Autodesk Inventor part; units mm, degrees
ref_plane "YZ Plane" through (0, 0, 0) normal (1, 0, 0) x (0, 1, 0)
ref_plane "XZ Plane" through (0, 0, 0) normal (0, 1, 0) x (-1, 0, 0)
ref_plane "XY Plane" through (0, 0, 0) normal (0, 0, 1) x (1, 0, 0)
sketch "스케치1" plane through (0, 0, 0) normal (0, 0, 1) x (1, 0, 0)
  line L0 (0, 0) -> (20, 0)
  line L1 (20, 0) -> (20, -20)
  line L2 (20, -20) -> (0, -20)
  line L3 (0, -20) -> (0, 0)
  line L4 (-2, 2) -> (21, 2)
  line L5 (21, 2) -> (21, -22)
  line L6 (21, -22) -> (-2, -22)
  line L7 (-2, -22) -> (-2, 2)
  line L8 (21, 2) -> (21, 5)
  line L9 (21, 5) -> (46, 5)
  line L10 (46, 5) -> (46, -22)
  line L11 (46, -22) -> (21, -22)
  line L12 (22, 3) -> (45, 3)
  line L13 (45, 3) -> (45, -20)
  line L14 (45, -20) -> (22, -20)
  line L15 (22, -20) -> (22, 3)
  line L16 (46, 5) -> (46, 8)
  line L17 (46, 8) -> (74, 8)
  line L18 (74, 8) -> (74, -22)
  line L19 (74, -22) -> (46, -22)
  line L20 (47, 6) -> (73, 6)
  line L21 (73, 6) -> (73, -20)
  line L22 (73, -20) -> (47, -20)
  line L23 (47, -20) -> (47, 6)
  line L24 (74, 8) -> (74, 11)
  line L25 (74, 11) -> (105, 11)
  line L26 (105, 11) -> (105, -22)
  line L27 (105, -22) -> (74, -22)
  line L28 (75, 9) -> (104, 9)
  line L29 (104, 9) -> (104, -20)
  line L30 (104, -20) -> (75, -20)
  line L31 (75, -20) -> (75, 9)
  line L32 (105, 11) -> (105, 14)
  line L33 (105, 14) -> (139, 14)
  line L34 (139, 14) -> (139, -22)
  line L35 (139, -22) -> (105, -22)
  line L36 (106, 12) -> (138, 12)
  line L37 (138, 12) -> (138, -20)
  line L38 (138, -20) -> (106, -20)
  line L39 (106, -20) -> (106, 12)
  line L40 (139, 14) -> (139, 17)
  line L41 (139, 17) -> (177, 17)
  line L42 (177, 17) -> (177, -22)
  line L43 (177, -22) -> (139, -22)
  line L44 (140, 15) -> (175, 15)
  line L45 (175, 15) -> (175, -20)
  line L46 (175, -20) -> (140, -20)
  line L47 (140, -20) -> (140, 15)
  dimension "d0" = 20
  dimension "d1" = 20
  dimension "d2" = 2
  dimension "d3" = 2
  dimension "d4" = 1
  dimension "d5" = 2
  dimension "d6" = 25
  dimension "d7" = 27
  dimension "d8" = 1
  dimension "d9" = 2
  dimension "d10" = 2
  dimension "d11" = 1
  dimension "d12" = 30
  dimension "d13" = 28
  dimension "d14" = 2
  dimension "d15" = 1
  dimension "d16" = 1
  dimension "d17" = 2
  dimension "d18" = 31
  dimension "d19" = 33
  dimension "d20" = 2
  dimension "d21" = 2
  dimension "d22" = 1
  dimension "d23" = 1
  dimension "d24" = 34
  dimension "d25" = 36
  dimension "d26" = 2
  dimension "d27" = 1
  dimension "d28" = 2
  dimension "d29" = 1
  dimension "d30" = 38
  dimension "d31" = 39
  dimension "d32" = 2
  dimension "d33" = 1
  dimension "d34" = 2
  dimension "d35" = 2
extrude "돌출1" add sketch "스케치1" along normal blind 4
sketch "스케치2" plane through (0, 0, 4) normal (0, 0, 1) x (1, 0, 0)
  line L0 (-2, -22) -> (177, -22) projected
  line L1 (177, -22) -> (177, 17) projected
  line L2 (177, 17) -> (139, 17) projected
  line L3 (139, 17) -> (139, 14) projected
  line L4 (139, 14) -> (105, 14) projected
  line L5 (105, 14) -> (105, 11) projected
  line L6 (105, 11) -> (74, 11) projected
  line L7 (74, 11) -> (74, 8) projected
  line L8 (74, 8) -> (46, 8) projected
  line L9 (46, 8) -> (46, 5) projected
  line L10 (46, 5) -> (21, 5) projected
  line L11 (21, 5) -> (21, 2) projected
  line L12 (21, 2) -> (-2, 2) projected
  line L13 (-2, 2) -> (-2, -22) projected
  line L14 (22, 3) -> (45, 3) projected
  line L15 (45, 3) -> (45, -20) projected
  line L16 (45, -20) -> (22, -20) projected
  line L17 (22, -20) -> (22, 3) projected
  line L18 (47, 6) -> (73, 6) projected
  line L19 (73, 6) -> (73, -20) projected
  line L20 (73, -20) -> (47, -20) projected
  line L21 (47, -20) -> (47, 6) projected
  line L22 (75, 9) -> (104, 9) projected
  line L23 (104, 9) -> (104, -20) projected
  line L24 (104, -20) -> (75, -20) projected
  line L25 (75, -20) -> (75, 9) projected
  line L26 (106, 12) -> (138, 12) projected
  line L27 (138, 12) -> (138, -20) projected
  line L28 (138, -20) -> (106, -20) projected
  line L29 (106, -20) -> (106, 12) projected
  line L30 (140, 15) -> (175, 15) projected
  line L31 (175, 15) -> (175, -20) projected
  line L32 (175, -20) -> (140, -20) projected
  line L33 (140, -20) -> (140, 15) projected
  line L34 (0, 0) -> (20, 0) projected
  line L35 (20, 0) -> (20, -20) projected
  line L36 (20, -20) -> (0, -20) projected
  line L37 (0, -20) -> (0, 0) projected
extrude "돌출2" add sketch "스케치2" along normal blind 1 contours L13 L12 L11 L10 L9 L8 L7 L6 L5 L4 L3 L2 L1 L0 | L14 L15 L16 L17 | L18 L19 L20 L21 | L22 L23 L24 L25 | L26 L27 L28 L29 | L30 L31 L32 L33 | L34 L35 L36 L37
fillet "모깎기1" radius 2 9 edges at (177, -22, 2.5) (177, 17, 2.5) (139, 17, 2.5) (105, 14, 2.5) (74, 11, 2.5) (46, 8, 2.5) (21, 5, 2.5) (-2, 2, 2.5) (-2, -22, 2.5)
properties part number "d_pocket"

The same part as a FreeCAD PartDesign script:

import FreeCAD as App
import Part
import Sketcher

V = App.Vector
Q = App.Units.Quantity


def edges_at(feature, points):
    """Names of the edges that pass closest to the given points."""
    edges = feature.Shape.Edges
    near = lambda p: min(range(len(edges)), key=lambda i: edges[i].distToShape(Part.Vertex(*p))[0])
    return sorted({f"Edge{near(p) + 1}" for p in points})


def add_polygon(sketch, points):
    """Adds a closed chain of lines whose ends are joined by coincident constraints."""
    first, n = sketch.GeometryCount, len(points)
    for a, b in zip(points, points[1:] + points[:1]):
        sketch.addGeometry(Part.LineSegment(App.Vector(*a, 0), App.Vector(*b, 0)), False)
    for i in range(n):
        sketch.addConstraint(Sketcher.Constraint("Coincident", first + i, 2, first + (i + 1) % n, 1))

doc = App.newDocument("Part")
body = doc.addObject("PartDesign::Body", "Body")

sketch1 = body.newObject("Sketcher::SketchObject", "Sketch")
sketch1.AttachmentSupport = (doc.getObject("XY_Plane"), [""])
sketch1.MapMode = "FlatFace"
add_polygon(sketch1, [(21, 2), (-2, 2), (-2, -22), (177, -22), (177, 17), (139, 17), (139, 14), (105, 14), (105, 11), (74, 11), (74, 8), (46, 8), (46, 5), (21, 5)])
add_polygon(sketch1, [(0, -20), (0, 0), (20, 0), (20, -20)])
add_polygon(sketch1, [(22, 3), (45, 3), (45, -20), (22, -20)])
add_polygon(sketch1, [(47, 6), (73, 6), (73, -20), (47, -20)])
add_polygon(sketch1, [(75, 9), (104, 9), (104, -20), (75, -20)])
add_polygon(sketch1, [(106, 12), (138, 12), (138, -20), (106, -20)])
add_polygon(sketch1, [(140, 15), (175, 15), (175, -20), (140, -20)])
sketch1.addConstraint(Sketcher.Constraint("Horizontal", 0))
sketch1.addConstraint(Sketcher.Constraint("Vertical", 1))
sketch1.addConstraint(Sketcher.Constraint("Horizontal", 2))
sketch1.addConstraint(Sketcher.Constraint("Vertical", 3))
sketch1.addConstraint(Sketcher.Constraint("Horizontal", 4))
sketch1.addConstraint(Sketcher.Constraint("Vertical", 5))
sketch1.addConstraint(Sketcher.Constraint("Horizontal", 6))
sketch1.addConstraint(Sketcher.Constraint("Vertical", 7))
sketch1.addConstraint(Sketcher.Constraint("Horizontal", 8))
sketch1.addConstraint(Sketcher.Constraint("Vertical", 9))
sketch1.addConstraint(Sketcher.Constraint("Horizontal", 10))
sketch1.addConstraint(Sketcher.Constraint("Vertical", 11))
sketch1.addConstraint(Sketcher.Constraint("Horizontal", 12))
sketch1.addConstraint(Sketcher.Constraint("Vertical", 13))
sketch1.addConstraint(Sketcher.Constraint("Vertical", 14))
sketch1.addConstraint(Sketcher.Constraint("Horizontal", 15))
sketch1.addConstraint(Sketcher.Constraint("Vertical", 16))
sketch1.addConstraint(Sketcher.Constraint("Horizontal", 17))
sketch1.addConstraint(Sketcher.Constraint("Horizontal", 18))
sketch1.addConstraint(Sketcher.Constraint("Vertical", 19))
sketch1.addConstraint(Sketcher.Constraint("Horizontal", 20))
sketch1.addConstraint(Sketcher.Constraint("Vertical", 21))
sketch1.addConstraint(Sketcher.Constraint("Horizontal", 22))
sketch1.addConstraint(Sketcher.Constraint("Vertical", 23))
sketch1.addConstraint(Sketcher.Constraint("Horizontal", 24))
sketch1.addConstraint(Sketcher.Constraint("Vertical", 25))
sketch1.addConstraint(Sketcher.Constraint("Horizontal", 26))
sketch1.addConstraint(Sketcher.Constraint("Vertical", 27))
sketch1.addConstraint(Sketcher.Constraint("Horizontal", 28))
sketch1.addConstraint(Sketcher.Constraint("Vertical", 29))
sketch1.addConstraint(Sketcher.Constraint("Horizontal", 30))
sketch1.addConstraint(Sketcher.Constraint("Vertical", 31))
sketch1.addConstraint(Sketcher.Constraint("Horizontal", 32))
sketch1.addConstraint(Sketcher.Constraint("Vertical", 33))
sketch1.addConstraint(Sketcher.Constraint("Horizontal", 34))
sketch1.addConstraint(Sketcher.Constraint("Vertical", 35))
sketch1.addConstraint(Sketcher.Constraint("Horizontal", 36))
sketch1.addConstraint(Sketcher.Constraint("Vertical", 37))
sketch1.addConstraint(Sketcher.Constraint("Coincident", 14, 2, -1, 1))
sketch1.addConstraint(Sketcher.Constraint("Horizontal", 17, 2, 19, 2))
sketch1.addConstraint(Sketcher.Constraint("Horizontal", 20, 2, 23, 2))
sketch1.addConstraint(Sketcher.Constraint("Horizontal", 24, 2, 27, 2))
sketch1.addConstraint(Sketcher.Constraint("Horizontal", 28, 2, 31, 2))
sketch1.addConstraint(Sketcher.Constraint("Horizontal", 32, 2, 35, 2))
sketch1.addConstraint(Sketcher.Constraint("Equal", 0, 18))
sketch1.addConstraint(Sketcher.Constraint("Equal", 5, 7))
sketch1.addConstraint(Sketcher.Constraint("Equal", 7, 9))
sketch1.addConstraint(Sketcher.Constraint("Equal", 9, 11))
sketch1.addConstraint(Sketcher.Constraint("Equal", 11, 13))
sketch1.addConstraint(Sketcher.Constraint("Equal", 17, 14))
sketch1.addConstraint(Sketcher.Constraint("Equal", 20, 19))
sketch1.addConstraint(Sketcher.Constraint("Equal", 24, 23))
sketch1.addConstraint(Sketcher.Constraint("Equal", 28, 27))
sketch1.addConstraint(Sketcher.Constraint("Equal", 32, 31))
sketch1.addConstraint(Sketcher.Constraint("Equal", 36, 35))
sketch1.addConstraint(Sketcher.Constraint("DistanceX", 4, 2, 4, 1, Q("38 mm")))
sketch1.addConstraint(Sketcher.Constraint("DistanceX", 6, 2, 6, 1, Q("34 mm")))
sketch1.addConstraint(Sketcher.Constraint("DistanceX", 8, 2, 8, 1, Q("31 mm")))
sketch1.addConstraint(Sketcher.Constraint("DistanceX", 10, 2, 10, 1, Q("28 mm")))
sketch1.addConstraint(Sketcher.Constraint("DistanceX", 12, 2, 12, 1, Q("25 mm")))
sketch1.addConstraint(Sketcher.Constraint("DistanceX", 15, 1, 15, 2, Q("20 mm")))
sketch1.addConstraint(Sketcher.Constraint("DistanceY", 3, 1, 3, 2, Q("39 mm")))
sketch1.addConstraint(Sketcher.Constraint("DistanceX", 0, 2, -1, 1, Q("2 mm")))
sketch1.addConstraint(Sketcher.Constraint("DistanceY", -1, 1, 0, 2, Q("2 mm")))
sketch1.addConstraint(Sketcher.Constraint("DistanceY", 2, 2, 5, 2, Q("36 mm")))
sketch1.addConstraint(Sketcher.Constraint("DistanceX", 15, 2, 13, 2, Q("1 mm")))
sketch1.addConstraint(Sketcher.Constraint("DistanceX", 18, 2, 11, 2, Q("1 mm")))
sketch1.addConstraint(Sketcher.Constraint("DistanceX", 22, 2, 9, 2, Q("1 mm")))
sketch1.addConstraint(Sketcher.Constraint("DistanceY", 22, 2, 9, 2, Q("2 mm")))
sketch1.addConstraint(Sketcher.Constraint("DistanceX", 26, 2, 7, 2, Q("1 mm")))
sketch1.addConstraint(Sketcher.Constraint("DistanceY", 26, 2, 7, 2, Q("2 mm")))
sketch1.addConstraint(Sketcher.Constraint("DistanceX", 30, 2, 5, 2, Q("1 mm")))
sketch1.addConstraint(Sketcher.Constraint("DistanceY", 30, 2, 5, 2, Q("2 mm")))
sketch1.addConstraint(Sketcher.Constraint("DistanceX", 34, 2, 3, 2, Q("2 mm")))
sketch1.addConstraint(Sketcher.Constraint("DistanceY", 34, 2, 3, 2, Q("2 mm")))
pad1 = body.newObject("PartDesign::Pad", "Pad")
pad1.Profile = sketch1
pad1.Length = 4

sketch2 = body.newObject("Sketcher::SketchObject", "Sketch001")
sketch2.AttachmentSupport = (doc.getObject("XY_Plane"), [""])
sketch2.MapMode = "FlatFace"
sketch2.AttachmentOffset = App.Placement(V(0, 0, 4), App.Rotation())
add_polygon(sketch2, [(-2, 2), (-2, -22), (177, -22), (177, 17), (139, 17), (139, 14), (105, 14), (105, 11), (74, 11), (74, 8), (46, 8), (46, 5), (21, 5), (21, 2)])
sketch2.addConstraint(Sketcher.Constraint("Vertical", 0))
sketch2.addConstraint(Sketcher.Constraint("Horizontal", 1))
sketch2.addConstraint(Sketcher.Constraint("Vertical", 2))
sketch2.addConstraint(Sketcher.Constraint("Horizontal", 3))
sketch2.addConstraint(Sketcher.Constraint("Vertical", 4))
sketch2.addConstraint(Sketcher.Constraint("Horizontal", 5))
sketch2.addConstraint(Sketcher.Constraint("Vertical", 6))
sketch2.addConstraint(Sketcher.Constraint("Horizontal", 7))
sketch2.addConstraint(Sketcher.Constraint("Vertical", 8))
sketch2.addConstraint(Sketcher.Constraint("Horizontal", 9))
sketch2.addConstraint(Sketcher.Constraint("Vertical", 10))
sketch2.addConstraint(Sketcher.Constraint("Horizontal", 11))
sketch2.addConstraint(Sketcher.Constraint("Vertical", 12))
sketch2.addConstraint(Sketcher.Constraint("Horizontal", 13))
sketch2.addConstraint(Sketcher.Constraint("Equal", 4, 6))
sketch2.addConstraint(Sketcher.Constraint("Equal", 6, 8))
sketch2.addConstraint(Sketcher.Constraint("Equal", 8, 10))
sketch2.addConstraint(Sketcher.Constraint("Equal", 10, 12))
sketch2.addConstraint(Sketcher.Constraint("DistanceX", 1, 1, 1, 2, Q("179 mm")))
sketch2.addConstraint(Sketcher.Constraint("DistanceX", 3, 2, 3, 1, Q("38 mm")))
sketch2.addConstraint(Sketcher.Constraint("DistanceX", 5, 2, 5, 1, Q("34 mm")))
sketch2.addConstraint(Sketcher.Constraint("DistanceX", 7, 2, 7, 1, Q("31 mm")))
sketch2.addConstraint(Sketcher.Constraint("DistanceX", 9, 2, 9, 1, Q("28 mm")))
sketch2.addConstraint(Sketcher.Constraint("DistanceX", 11, 2, 11, 1, Q("25 mm")))
sketch2.addConstraint(Sketcher.Constraint("DistanceY", 0, 2, 0, 1, Q("24 mm")))
sketch2.addConstraint(Sketcher.Constraint("DistanceY", 2, 1, 2, 2, Q("39 mm")))
sketch2.addConstraint(Sketcher.Constraint("DistanceX", 0, 2, -1, 1, Q("2 mm")))
sketch2.addConstraint(Sketcher.Constraint("DistanceY", 0, 2, -1, 1, Q("22 mm")))
pad2 = body.newObject("PartDesign::Pad", "Pad001")
pad2.Profile = sketch2
pad2.Length = 1
doc.recompute()

fillet = body.newObject("PartDesign::Fillet", "Fillet")
fillet.Base = (pad2, edges_at(pad2, [
    (177, -22, 2.5),
    (177, 17, 2.5),
    (139, 17, 2.5),
    (105, 14, 2.5),
    (74, 11, 2.5),
    (46, 8, 2.5),
    (21, 5, 2.5),
    (-2, 2, 2.5),
    (-2, -22, 2.5),
]))
fillet.Radius = 2

doc.recompute()
